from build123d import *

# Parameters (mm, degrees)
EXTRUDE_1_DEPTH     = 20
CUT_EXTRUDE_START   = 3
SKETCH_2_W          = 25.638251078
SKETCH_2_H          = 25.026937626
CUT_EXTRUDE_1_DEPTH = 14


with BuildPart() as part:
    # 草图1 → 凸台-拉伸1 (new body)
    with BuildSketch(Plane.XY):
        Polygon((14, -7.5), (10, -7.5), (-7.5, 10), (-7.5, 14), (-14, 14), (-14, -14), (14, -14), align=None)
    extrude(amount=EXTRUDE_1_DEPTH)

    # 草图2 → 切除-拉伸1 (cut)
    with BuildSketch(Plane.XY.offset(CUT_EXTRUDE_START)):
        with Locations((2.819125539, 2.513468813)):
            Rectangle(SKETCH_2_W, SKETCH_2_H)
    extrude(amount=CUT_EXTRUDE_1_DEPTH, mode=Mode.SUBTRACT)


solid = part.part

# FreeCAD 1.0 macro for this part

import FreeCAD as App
import Part
import Sketcher
from FreeCAD import Vector


def add_polygon(sketch, points):
    """Adds a closed chain of lines whose ends are joined by coincident constraints."""
    first, n = sketch.GeometryCount, len(points)
    for a, b in zip(points, points[1:] + points[:1]):
        sketch.addGeometry(Part.LineSegment(App.Vector(*a, 0), App.Vector(*b, 0)), False)
    for i in range(n):
        sketch.addConstraint(Sketcher.Constraint("Coincident", first + i, 2, first + (i + 1) % n, 1))

doc = App.newDocument("Part")
body = doc.addObject("PartDesign::Body", "Body")

sketch1 = body.newObject("Sketcher::SketchObject", "Sketch")
sketch1.AttachmentSupport = (doc.getObject("XY_Plane"), [""])
sketch1.MapMode = "FlatFace"
add_polygon(sketch1, [(14, -7.5), (10, -7.5), (-7.5, 10), (-7.5, 14), (-14, 14), (-14, -14), (14, -14)])
sketch1.addConstraint([
    Sketcher.Constraint("Horizontal", 0),
    Sketcher.Constraint("Vertical", 2),
    Sketcher.Constraint("Horizontal", 3),
    Sketcher.Constraint("Vertical", 4),
    Sketcher.Constraint("Horizontal", 5),
    Sketcher.Constraint("Vertical", 6),
    Sketcher.Constraint("Symmetric", 3, 2, 5, 2, -1, 1),
    Sketcher.Constraint("Equal", 0, 2),
    Sketcher.Constraint("Equal", 5, 4),
    Sketcher.Constraint("Equal", 3, 6),
    Sketcher.Constraint("DistanceX", 0, 2, 0, 1, 4.0),
    Sketcher.Constraint("DistanceX", 5, 1, 5, 2, 28.0),
    Sketcher.Constraint("DistanceX", 3, 2, 3, 1, 6.5),
])
pad1 = body.newObject("PartDesign::Pad", "Pad")
pad1.Profile = sketch1
pad1.Length = 20

sketch2 = body.newObject("Sketcher::SketchObject", "Sketch001")
sketch2.AttachmentSupport = (doc.getObject("XY_Plane"), [""])
sketch2.MapMode = "FlatFace"
sketch2.AttachmentOffset = App.Placement(Vector(0, 0, 3), App.Rotation())
add_polygon(sketch2, [(-10, 15), (-10, -10), (16, -10), (16, 15)])
sketch2.addConstraint([
    Sketcher.Constraint("Vertical", 0),
    Sketcher.Constraint("Horizontal", 1),
    Sketcher.Constraint("Vertical", 2),
    Sketcher.Constraint("Horizontal", 3),
    Sketcher.Constraint("DistanceX", 0, 2, -1, 1, 10.0),
    Sketcher.Constraint("DistanceY", 0, 2, -1, 1, 10.0),
    Sketcher.Constraint("DistanceX", 1, 1, 1, 2, 25.638251),
    Sketcher.Constraint("DistanceY", 0, 2, 0, 1, 25.026938),
])
pocket1 = body.newObject("PartDesign::Pocket", "Pocket")
pocket1.Profile = sketch2
pocket1.Length = 14
pocket1.Reversed = True

doc.recompute()
